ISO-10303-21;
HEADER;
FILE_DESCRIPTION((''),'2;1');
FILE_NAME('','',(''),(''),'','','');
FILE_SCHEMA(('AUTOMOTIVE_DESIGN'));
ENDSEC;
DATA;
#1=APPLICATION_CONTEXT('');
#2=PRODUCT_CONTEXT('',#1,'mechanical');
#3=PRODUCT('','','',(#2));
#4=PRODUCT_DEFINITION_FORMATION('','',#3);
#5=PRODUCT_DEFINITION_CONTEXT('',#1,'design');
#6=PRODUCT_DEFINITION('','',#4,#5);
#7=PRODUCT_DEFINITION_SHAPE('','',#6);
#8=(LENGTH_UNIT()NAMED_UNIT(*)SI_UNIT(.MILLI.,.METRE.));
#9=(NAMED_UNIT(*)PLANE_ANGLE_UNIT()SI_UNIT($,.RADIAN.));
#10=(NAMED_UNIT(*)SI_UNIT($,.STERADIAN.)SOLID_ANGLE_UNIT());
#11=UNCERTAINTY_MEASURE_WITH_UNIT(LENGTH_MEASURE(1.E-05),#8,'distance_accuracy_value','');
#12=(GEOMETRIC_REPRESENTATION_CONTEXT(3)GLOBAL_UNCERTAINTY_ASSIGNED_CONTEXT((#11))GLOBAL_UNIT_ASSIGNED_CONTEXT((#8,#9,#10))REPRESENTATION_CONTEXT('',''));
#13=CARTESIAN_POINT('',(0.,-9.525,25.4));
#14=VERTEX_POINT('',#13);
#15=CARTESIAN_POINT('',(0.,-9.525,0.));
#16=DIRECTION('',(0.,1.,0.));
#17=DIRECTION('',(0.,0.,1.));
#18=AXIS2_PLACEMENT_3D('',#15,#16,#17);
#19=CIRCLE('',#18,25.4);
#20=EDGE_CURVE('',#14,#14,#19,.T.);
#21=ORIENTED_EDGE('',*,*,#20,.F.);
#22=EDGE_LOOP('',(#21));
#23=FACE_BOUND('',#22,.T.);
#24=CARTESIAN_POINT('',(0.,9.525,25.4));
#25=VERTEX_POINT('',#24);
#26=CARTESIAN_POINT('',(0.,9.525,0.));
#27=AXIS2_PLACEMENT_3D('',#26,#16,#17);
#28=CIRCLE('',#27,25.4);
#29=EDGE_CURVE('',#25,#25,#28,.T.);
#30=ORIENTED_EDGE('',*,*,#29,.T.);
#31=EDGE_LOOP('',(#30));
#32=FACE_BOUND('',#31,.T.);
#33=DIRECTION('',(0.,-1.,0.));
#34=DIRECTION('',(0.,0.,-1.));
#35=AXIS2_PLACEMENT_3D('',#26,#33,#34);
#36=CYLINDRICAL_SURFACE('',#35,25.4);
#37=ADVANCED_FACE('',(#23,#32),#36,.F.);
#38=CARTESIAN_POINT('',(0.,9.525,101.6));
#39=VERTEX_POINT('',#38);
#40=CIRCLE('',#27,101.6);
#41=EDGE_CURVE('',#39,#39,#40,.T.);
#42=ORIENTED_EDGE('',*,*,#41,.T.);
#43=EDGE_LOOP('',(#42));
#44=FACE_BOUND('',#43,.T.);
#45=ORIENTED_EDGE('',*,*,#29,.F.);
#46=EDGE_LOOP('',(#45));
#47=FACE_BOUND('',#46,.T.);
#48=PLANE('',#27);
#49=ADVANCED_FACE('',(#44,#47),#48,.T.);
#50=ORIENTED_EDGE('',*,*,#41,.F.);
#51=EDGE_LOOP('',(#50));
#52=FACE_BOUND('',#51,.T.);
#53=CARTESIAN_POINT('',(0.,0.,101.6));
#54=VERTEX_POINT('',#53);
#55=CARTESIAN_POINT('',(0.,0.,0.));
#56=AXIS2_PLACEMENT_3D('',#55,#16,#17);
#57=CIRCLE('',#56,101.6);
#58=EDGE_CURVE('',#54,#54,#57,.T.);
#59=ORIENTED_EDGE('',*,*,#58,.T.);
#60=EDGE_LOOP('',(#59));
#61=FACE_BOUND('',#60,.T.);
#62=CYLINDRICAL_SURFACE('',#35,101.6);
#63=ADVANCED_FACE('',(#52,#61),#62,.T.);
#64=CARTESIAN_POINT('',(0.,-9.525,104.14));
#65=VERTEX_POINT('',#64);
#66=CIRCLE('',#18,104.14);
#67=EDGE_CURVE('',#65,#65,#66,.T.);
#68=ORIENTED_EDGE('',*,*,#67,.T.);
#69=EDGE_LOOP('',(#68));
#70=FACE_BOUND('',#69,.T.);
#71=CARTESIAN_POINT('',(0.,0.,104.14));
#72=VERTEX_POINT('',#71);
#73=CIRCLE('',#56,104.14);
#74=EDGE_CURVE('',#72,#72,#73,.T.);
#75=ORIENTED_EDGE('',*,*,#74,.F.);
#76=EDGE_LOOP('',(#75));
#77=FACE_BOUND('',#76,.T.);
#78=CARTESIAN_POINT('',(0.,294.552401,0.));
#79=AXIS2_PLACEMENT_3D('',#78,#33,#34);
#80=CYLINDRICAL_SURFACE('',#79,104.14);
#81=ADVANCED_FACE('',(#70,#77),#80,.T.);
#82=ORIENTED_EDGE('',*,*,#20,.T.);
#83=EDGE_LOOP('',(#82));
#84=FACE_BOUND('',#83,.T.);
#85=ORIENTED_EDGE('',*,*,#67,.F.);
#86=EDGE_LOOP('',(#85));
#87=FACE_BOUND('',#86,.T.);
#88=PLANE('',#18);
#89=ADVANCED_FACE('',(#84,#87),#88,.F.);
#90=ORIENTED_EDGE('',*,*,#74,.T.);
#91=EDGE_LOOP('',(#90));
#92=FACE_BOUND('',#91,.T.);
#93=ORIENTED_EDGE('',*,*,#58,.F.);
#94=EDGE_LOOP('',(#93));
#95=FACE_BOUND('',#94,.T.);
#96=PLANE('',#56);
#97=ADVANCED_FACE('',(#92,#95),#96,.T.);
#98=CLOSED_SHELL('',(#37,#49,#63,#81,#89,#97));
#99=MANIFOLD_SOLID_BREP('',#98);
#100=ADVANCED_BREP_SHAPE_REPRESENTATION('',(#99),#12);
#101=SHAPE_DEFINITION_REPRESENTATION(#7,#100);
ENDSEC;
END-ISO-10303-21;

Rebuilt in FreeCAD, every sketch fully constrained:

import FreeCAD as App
import Part
import Sketcher

V = App.Vector
Q = App.Units.Quantity

doc = App.newDocument("Part")
body = doc.addObject("PartDesign::Body", "Body")

sketch1 = body.newObject("Sketcher::SketchObject", "Sketch")
sketch1.AttachmentSupport = (doc.getObject("XZ_Plane"), [""])
sketch1.MapMode = "FlatFace"
sketch1.addGeometry([
    Part.Circle(V(0, 0, 0), V(0, 0, 1), 101.6),
    Part.Circle(V(0, 0, 0), V(0, 0, 1), 25.4),
], False)
sketch1.addConstraint([
    Sketcher.Constraint("Coincident", 0, 3, -1, 1),
    Sketcher.Constraint("Coincident", 1, 3, -1, 1),
    Sketcher.Constraint("Diameter", 0, Q("8 in")),
    Sketcher.Constraint("Diameter", 1, Q("2 in")),
])
pad1 = body.newObject("PartDesign::Pad", "Pad")
pad1.Profile = sketch1
pad1.Length = Q("0.75 in")
pad1.Midplane = True

sketch2 = body.newObject("Sketcher::SketchObject", "Sketch001")
sketch2.AttachmentSupport = (doc.getObject("XZ_Plane"), [""])
sketch2.MapMode = "FlatFace"
sketch2.AttachmentOffset = App.Placement(V(0, 0, 0.375 * 25.4), App.Rotation())
sketch2.addGeometry([
    Part.Circle(V(0, 0, 0), V(0, 0, 1), 104.14),
    Part.Circle(V(0, 0, 0), V(0, 0, 1), 101.6),
], False)
sketch2.addConstraint([
    Sketcher.Constraint("Coincident", 0, 3, -1, 1),
    Sketcher.Constraint("Coincident", 1, 3, -1, 1),
    Sketcher.Constraint("Diameter", 1, Q("8 in")),
    Sketcher.Constraint("Diameter", 0, Q("8.2 in")),
])
pad2 = body.newObject("PartDesign::Pad", "Pad001")
pad2.Profile = sketch2
pad2.Length = Q("0.375 in")
pad2.Reversed = True

doc.recompute()
